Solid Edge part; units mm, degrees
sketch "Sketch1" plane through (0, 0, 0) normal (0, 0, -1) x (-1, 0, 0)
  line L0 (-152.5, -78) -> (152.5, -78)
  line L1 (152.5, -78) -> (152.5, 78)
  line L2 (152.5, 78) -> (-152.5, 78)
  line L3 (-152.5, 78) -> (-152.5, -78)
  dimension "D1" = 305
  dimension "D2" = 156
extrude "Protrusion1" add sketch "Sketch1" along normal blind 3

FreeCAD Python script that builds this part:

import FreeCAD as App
import Part
import Sketcher


def add_polygon(sketch, points):
    """Adds a closed chain of lines whose ends are joined by coincident constraints."""
    first, n = sketch.GeometryCount, len(points)
    for a, b in zip(points, points[1:] + points[:1]):
        sketch.addGeometry(Part.LineSegment(App.Vector(*a, 0), App.Vector(*b, 0)), False)
    for i in range(n):
        sketch.addConstraint(Sketcher.Constraint("Coincident", first + i, 2, first + (i + 1) % n, 1))

doc = App.newDocument("Part")
body = doc.addObject("PartDesign::Body", "Body")

# Sketch on XY plane
sketch1 = doc.addObject("Sketcher::SketchObject", "Sketch")
body.addObject(sketch1)
sketch1.AttachmentSupport = (doc.XY_Plane, [""])
sketch1.MapMode = "FlatFace"
add_polygon(sketch1, [(152.5, 78), (152.5, -78), (-152.5, -78), (-152.5, 78)])  # lines 0-3
sketch1.addConstraint([
    Sketcher.Constraint("Vertical", 0),
    Sketcher.Constraint("Horizontal", 1),
    Sketcher.Constraint("Vertical", 2),
    Sketcher.Constraint("Horizontal", 3),
    Sketcher.Constraint("Symmetric", 0, 2, 2, 2, -1, 1),
    Sketcher.Constraint("DistanceX", 1, 2, 1, 1, 305.0),
    Sketcher.Constraint("DistanceY", 0, 2, 0, 1, 156.0),
])
pad1 = doc.addObject("PartDesign::Pad", "Pad")
body.addObject(pad1)
pad1.Profile = sketch1
pad1.Length = 3
pad1.Reversed = True

doc.recompute()
